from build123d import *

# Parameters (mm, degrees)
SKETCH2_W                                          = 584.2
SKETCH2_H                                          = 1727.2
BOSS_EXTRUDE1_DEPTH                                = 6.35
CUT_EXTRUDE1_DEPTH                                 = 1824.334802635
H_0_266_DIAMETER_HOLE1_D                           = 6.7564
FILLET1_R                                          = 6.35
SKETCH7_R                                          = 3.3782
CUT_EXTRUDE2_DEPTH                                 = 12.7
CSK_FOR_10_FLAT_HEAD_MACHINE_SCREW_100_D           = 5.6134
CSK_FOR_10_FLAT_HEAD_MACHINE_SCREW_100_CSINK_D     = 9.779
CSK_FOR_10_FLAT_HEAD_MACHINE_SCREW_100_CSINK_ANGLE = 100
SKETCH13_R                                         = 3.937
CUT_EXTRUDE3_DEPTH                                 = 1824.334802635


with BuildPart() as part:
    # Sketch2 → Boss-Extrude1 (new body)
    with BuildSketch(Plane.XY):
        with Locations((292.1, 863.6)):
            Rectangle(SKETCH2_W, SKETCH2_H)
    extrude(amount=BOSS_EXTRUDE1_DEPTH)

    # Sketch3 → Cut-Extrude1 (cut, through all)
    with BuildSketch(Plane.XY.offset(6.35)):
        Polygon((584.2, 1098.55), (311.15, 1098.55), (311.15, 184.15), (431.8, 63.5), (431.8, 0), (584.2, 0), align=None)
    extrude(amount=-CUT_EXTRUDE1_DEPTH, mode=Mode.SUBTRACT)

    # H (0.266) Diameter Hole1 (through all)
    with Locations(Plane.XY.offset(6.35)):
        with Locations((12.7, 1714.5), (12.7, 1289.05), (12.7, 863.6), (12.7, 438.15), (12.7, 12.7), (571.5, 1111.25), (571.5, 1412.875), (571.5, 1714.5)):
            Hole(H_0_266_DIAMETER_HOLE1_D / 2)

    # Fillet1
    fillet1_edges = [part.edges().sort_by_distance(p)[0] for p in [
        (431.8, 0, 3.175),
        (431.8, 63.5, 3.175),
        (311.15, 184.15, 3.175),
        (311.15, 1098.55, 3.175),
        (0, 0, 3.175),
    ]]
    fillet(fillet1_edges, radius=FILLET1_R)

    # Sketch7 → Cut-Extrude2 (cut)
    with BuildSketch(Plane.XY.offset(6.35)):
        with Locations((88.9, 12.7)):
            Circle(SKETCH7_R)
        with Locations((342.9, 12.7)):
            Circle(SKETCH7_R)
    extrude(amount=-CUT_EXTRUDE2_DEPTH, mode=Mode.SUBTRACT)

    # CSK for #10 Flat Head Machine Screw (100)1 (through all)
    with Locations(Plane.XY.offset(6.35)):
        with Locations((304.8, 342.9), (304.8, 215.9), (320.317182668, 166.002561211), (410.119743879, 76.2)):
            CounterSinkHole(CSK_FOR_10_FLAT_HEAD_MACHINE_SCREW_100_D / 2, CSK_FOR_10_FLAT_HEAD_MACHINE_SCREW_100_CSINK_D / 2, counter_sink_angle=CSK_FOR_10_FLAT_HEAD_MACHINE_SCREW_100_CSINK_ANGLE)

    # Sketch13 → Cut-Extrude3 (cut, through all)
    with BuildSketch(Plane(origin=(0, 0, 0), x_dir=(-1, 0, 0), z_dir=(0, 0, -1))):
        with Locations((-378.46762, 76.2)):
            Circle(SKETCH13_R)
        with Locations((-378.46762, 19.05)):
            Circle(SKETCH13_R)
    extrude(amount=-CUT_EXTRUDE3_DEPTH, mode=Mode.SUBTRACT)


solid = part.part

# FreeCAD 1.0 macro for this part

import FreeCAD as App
import Part
import Sketcher
Q = App.Units.Quantity


def edges_at(feature, points):
    """Names of the edges that pass closest to the given points."""
    edges = feature.Shape.Edges
    near = lambda p: min(range(len(edges)), key=lambda i: edges[i].distToShape(Part.Vertex(*p))[0])
    return sorted({f"Edge{near(p) + 1}" for p in points})

doc = App.newDocument("Part")
body = doc.addObject("PartDesign::Body", "Body")

sketch1 = body.newObject("Sketcher::SketchObject", "Sketch")
sketch1.AttachmentSupport = (doc.getObject("XY_Plane"), [""])
sketch1.MapMode = "FlatFace"
sketch1.addGeometry([
    Part.LineSegment(App.Vector(0, 1727, 0), App.Vector(0, 0, 0)),
    Part.LineSegment(App.Vector(0, 0, 0), App.Vector(584, 0, 0)),
    Part.LineSegment(App.Vector(584, 0, 0), App.Vector(584, 1727, 0)),
    Part.LineSegment(App.Vector(584, 1727, 0), App.Vector(0, 1727, 0)),
], False)
sketch1.addConstraint([
    Sketcher.Constraint("Coincident", 0, 2, 1, 1),
    Sketcher.Constraint("Coincident", 1, 2, 2, 1),
    Sketcher.Constraint("Coincident", 2, 2, 3, 1),
    Sketcher.Constraint("Coincident", 3, 2, 0, 1),
    Sketcher.Constraint("Vertical", 0),
    Sketcher.Constraint("Horizontal", 1),
    Sketcher.Constraint("Vertical", 2),
    Sketcher.Constraint("Horizontal", 3),
    Sketcher.Constraint("Coincident", 0, 2, -1, 1),
    Sketcher.Constraint("DistanceX", 1, 1, 1, 2, Q("23 in")),
    Sketcher.Constraint("DistanceY", 0, 2, 0, 1, Q("68 in")),
])
pad1 = body.newObject("PartDesign::Pad", "Pad")
pad1.Profile = sketch1
pad1.Length = Q("0.25 in")

sketch2 = body.newObject("Sketcher::SketchObject", "Sketch001")
sketch2.AttachmentSupport = (doc.getObject("XY_Plane"), [""])
sketch2.MapMode = "FlatFace"
sketch2.AttachmentOffset = App.Placement(App.Vector(0, 0, 0.25 * 25.4), App.Rotation())
sketch2.addGeometry([
    Part.LineSegment(App.Vector(584, 1099, 0), App.Vector(311, 1099, 0)),
    Part.LineSegment(App.Vector(311, 1099, 0), App.Vector(311, 184, 0)),
    Part.LineSegment(App.Vector(311, 184, 0), App.Vector(432, 64, 0)),
    Part.LineSegment(App.Vector(432, 64, 0), App.Vector(432, 0, 0)),
    Part.LineSegment(App.Vector(432, 0, 0), App.Vector(584, 0, 0)),
    Part.LineSegment(App.Vector(584, 0, 0), App.Vector(584, 1099, 0)),
], False)
sketch2.addConstraint([
    Sketcher.Constraint("Coincident", 0, 2, 1, 1),
    Sketcher.Constraint("Coincident", 1, 2, 2, 1),
    Sketcher.Constraint("Coincident", 2, 2, 3, 1),
    Sketcher.Constraint("Coincident", 3, 2, 4, 1),
    Sketcher.Constraint("Coincident", 4, 2, 5, 1),
    Sketcher.Constraint("Coincident", 5, 2, 0, 1),
    Sketcher.Constraint("Horizontal", 0),
    Sketcher.Constraint("Vertical", 1),
    Sketcher.Constraint("Vertical", 3),
    Sketcher.Constraint("Horizontal", 4),
    Sketcher.Constraint("Vertical", 5),
    Sketcher.Constraint("PointOnObject", 3, 2, -1),
    Sketcher.Constraint("DistanceX", 4, 1, 4, 2, Q("6 in")),
    Sketcher.Constraint("DistanceY", 1, 2, 1, 1, Q("36 in")),
    Sketcher.Constraint("DistanceY", 3, 2, 3, 1, Q("2.5 in")),
    Sketcher.Constraint("DistanceX", -1, 1, 2, 2, Q("17 in")),
    Sketcher.Constraint("Angle", 2, Q("-45 deg")),
    Sketcher.Constraint("DistanceX", 0, 2, 0, 1, Q("10.75 in")),
])
pocket1 = body.newObject("PartDesign::Pocket", "Pocket")
pocket1.Profile = sketch2
pocket1.Type = "ThroughAll"

sketch3 = body.newObject("Sketcher::SketchObject", "Sketch002")
sketch3.AttachmentSupport = (doc.getObject("XY_Plane"), [""])
sketch3.MapMode = "FlatFace"
sketch3.AttachmentOffset = App.Placement(App.Vector(0, 0, 0.25 * 25.4), App.Rotation())
sketch3.addGeometry([
    Part.Circle(App.Vector(12.7, 1714.5, 0), App.Vector(0, 0, 1), 3.4),
    Part.Circle(App.Vector(12.7, 1289, 0), App.Vector(0, 0, 1), 3.4),
    Part.Circle(App.Vector(12.7, 863.6, 0), App.Vector(0, 0, 1), 3.4),
    Part.Circle(App.Vector(12.7, 438.1, 0), App.Vector(0, 0, 1), 3.4),
    Part.Circle(App.Vector(12.7, 12.7, 0), App.Vector(0, 0, 1), 3.4),
    Part.Circle(App.Vector(571.5, 1111.2, 0), App.Vector(0, 0, 1), 3.4),
    Part.Circle(App.Vector(571.5, 1412.9, 0), App.Vector(0, 0, 1), 3.4),
    Part.Circle(App.Vector(571.5, 1714.5, 0), App.Vector(0, 0, 1), 3.4),
], False)
sketch3.addConstraint([
    Sketcher.Constraint("Equal", 0, 1),
    Sketcher.Constraint("Equal", 1, 2),
    Sketcher.Constraint("Equal", 2, 3),
    Sketcher.Constraint("Equal", 3, 4),
    Sketcher.Constraint("Equal", 4, 5),
    Sketcher.Constraint("Equal", 5, 6),
    Sketcher.Constraint("Equal", 6, 7),
    Sketcher.Constraint("Horizontal", 0, 3, 7, 3),
    Sketcher.Constraint("Vertical", 0, 3, 1, 3),
    Sketcher.Constraint("Vertical", 1, 3, 2, 3),
    Sketcher.Constraint("Vertical", 2, 3, 3, 3),
    Sketcher.Constraint("Vertical", 3, 3, 4, 3),
    Sketcher.Constraint("Vertical", 5, 3, 6, 3),
    Sketcher.Constraint("Vertical", 6, 3, 7, 3),
    Sketcher.Constraint("Diameter", 0, Q("0.266 in")),
    Sketcher.Constraint("DistanceY", -1, 1, 2, 3, Q("34 in")),
    Sketcher.Constraint("DistanceY", 4, 3, 0, 3, Q("67 in")),
    Sketcher.Constraint("DistanceX", 1, 3, 5, 3, Q("22 in")),
    Sketcher.Constraint("DistanceY", 5, 3, 1, 3, Q("7 in")),
    Sketcher.Constraint("DistanceX", -1, 1, 0, 3, Q("0.5 in")),
    Sketcher.Constraint("DistanceY", -1, 1, 0, 3, Q("67.5 in")),
    Sketcher.Constraint("DistanceY", 3, 3, 1, 3, Q("33.5 in")),
    Sketcher.Constraint("DistanceY", -1, 1, 1, 3, Q("50.75 in")),
    Sketcher.Constraint("DistanceY", -1, 1, 6, 3, Q("55.625 in")),
])
doc.recompute()
hole = body.newObject("PartDesign::Hole", "Hole")
hole.Profile = sketch3
hole.ThreadType = "None"
hole.Diameter = Q("0.266 in")
hole.DepthType = "ThroughAll"
doc.recompute()

fillet = body.newObject("PartDesign::Fillet", "Fillet")
fillet.Base = (hole, edges_at(hole, [
    (431.8, 0, 3.175),
    (431.8, 63.5, 3.175),
    (311.15, 184.15, 3.175),
    (311.15, 1098.55, 3.175),
    (0, 0, 3.175),
]))
fillet.Radius = Q("0.25 in")

sketch4 = body.newObject("Sketcher::SketchObject", "Sketch003")
sketch4.AttachmentSupport = (doc.getObject("XY_Plane"), [""])
sketch4.MapMode = "FlatFace"
sketch4.AttachmentOffset = App.Placement(App.Vector(0, 0, 0.25 * 25.4), App.Rotation())
sketch4.addGeometry([
    Part.Circle(App.Vector(88.9, 12.7, 0), App.Vector(0, 0, 1), 3.4),
    Part.Circle(App.Vector(342.9, 12.7, 0), App.Vector(0, 0, 1), 3.4),
], False)
sketch4.addConstraint([
    Sketcher.Constraint("Equal", 0, 1),
    Sketcher.Constraint("Horizontal", 0, 3, 1, 3),
    Sketcher.Constraint("Diameter", 0, Q("0.266 in")),
    Sketcher.Constraint("DistanceX", 0, 3, 1, 3, Q("10 in")),
    Sketcher.Constraint("DistanceX", -1, 1, 0, 3, Q("3.5 in")),
    Sketcher.Constraint("DistanceY", -1, 1, 0, 3, Q("0.5 in")),
])
pocket2 = body.newObject("PartDesign::Pocket", "Pocket001")
pocket2.Profile = sketch4
pocket2.Length = Q("0.5 in")

sketch5 = body.newObject("Sketcher::SketchObject", "Sketch004")
sketch5.AttachmentSupport = (doc.getObject("XY_Plane"), [""])
sketch5.MapMode = "FlatFace"
sketch5.AttachmentOffset = App.Placement(App.Vector(0, 0, 0.25 * 25.4), App.Rotation())
sketch5.addGeometry([
    Part.Circle(App.Vector(304.8, 342.9, 0), App.Vector(0, 0, 1), 2.8),
    Part.Circle(App.Vector(304.8, 215.9, 0), App.Vector(0, 0, 1), 2.8),
    Part.Circle(App.Vector(320.3, 166, 0), App.Vector(0, 0, 1), 2.8),
    Part.Circle(App.Vector(410.1, 76.2, 0), App.Vector(0, 0, 1), 2.8),
], False)
sketch5.addConstraint([
    Sketcher.Constraint("Equal", 0, 1),
    Sketcher.Constraint("Equal", 1, 2),
    Sketcher.Constraint("Equal", 2, 3),
    Sketcher.Constraint("Vertical", 0, 3, 1, 3),
    Sketcher.Constraint("Diameter", 0, Q("0.221 in")),
    Sketcher.Constraint("DistanceX", -1, 1, 0, 3, Q("12 in")),
    Sketcher.Constraint("DistanceY", -1, 1, 3, 3, Q("3 in")),
    Sketcher.Constraint("DistanceY", 1, 3, 0, 3, Q("5 in")),
    Sketcher.Constraint("DistanceY", -1, 1, 0, 3, Q("13.5 in")),
    Sketcher.Constraint("DistanceY", -1, 1, 2, 3, 166.002561),
    Sketcher.Constraint("DistanceX", 2, 3, 3, 3, 89.802561),
    Sketcher.Constraint("DistanceX", -1, 1, 2, 3, 320.317183),
])
doc.recompute()
hole2 = body.newObject("PartDesign::Hole", "Hole001")
hole2.Profile = sketch5
hole2.ThreadType = "None"
hole2.Diameter = Q("0.221 in")
hole2.DepthType = "ThroughAll"
hole2.HoleCutType = "Countersink"
hole2.HoleCutDiameter = Q("0.385 in")
hole2.HoleCutCountersinkAngle = 100

sketch6 = body.newObject("Sketcher::SketchObject", "Sketch005")
sketch6.AttachmentSupport = (doc.getObject("XY_Plane"), [""])
sketch6.MapMode = "FlatFace"
sketch6.addGeometry([
    Part.Circle(App.Vector(378.5, 76.2, 0), App.Vector(0, 0, 1), 3.9),
    Part.Circle(App.Vector(378.5, 19.1, 0), App.Vector(0, 0, 1), 3.9),
], False)
sketch6.addConstraint([
    Sketcher.Constraint("Equal", 0, 1),
    Sketcher.Constraint("Vertical", 0, 3, 1, 3),
    Sketcher.Constraint("Diameter", 0, Q("0.31 in")),
    Sketcher.Constraint("DistanceY", -1, 1, 0, 3, Q("3 in")),
    Sketcher.Constraint("DistanceY", -1, 1, 1, 3, Q("0.75 in")),
    Sketcher.Constraint("DistanceX", -1, 1, 0, 3, Q("14.9003 in")),
])
pocket3 = body.newObject("PartDesign::Pocket", "Pocket002")
pocket3.Profile = sketch6
pocket3.Type = "ThroughAll"
pocket3.Reversed = True

doc.recompute()
